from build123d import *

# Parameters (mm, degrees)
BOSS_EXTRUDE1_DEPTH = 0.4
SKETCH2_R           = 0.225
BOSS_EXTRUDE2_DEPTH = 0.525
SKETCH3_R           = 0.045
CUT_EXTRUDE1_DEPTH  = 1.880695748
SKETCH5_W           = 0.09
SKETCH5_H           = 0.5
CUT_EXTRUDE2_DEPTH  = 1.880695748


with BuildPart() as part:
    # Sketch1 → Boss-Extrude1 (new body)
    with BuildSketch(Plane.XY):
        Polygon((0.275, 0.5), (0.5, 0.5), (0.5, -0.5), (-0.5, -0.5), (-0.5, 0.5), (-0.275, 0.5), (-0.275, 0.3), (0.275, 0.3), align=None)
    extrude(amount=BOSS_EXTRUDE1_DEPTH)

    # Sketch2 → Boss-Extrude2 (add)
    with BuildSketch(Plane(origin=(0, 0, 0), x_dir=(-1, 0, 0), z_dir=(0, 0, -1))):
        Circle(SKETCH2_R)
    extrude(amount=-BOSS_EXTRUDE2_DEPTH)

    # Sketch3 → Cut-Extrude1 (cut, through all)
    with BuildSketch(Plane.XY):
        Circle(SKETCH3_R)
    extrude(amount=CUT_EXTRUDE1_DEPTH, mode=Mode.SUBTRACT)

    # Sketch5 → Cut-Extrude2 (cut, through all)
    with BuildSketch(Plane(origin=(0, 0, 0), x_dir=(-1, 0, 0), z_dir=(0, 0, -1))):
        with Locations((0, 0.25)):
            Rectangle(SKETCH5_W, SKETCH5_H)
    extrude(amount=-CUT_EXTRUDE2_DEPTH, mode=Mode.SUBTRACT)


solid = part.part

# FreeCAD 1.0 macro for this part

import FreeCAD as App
import Part
import Sketcher
from FreeCAD import Vector


def add_polygon(sketch, points):
    """Adds a closed chain of lines whose ends are joined by coincident constraints."""
    first, n = sketch.GeometryCount, len(points)
    for a, b in zip(points, points[1:] + points[:1]):
        sketch.addGeometry(Part.LineSegment(App.Vector(*a, 0), App.Vector(*b, 0)), False)
    for i in range(n):
        sketch.addConstraint(Sketcher.Constraint("Coincident", first + i, 2, first + (i + 1) % n, 1))

doc = App.newDocument("Part")
body = doc.addObject("PartDesign::Body", "Body")

sketch1 = doc.addObject("Sketcher::SketchObject", "Sketch")
body.addObject(sketch1)
sketch1.AttachmentSupport = (doc.XY_Plane, [""])
sketch1.MapMode = "FlatFace"
add_polygon(sketch1, [(0.5, 0.5), (0.28, 0.5), (0.28, 0.3), (-0.28, 0.3), (-0.28, 0.5), (-0.5, 0.5), (-0.5, -0.5), (0.5, -0.5)])
sketch1.addConstraint([
    Sketcher.Constraint("Horizontal", 0),
    Sketcher.Constraint("Vertical", 1),
    Sketcher.Constraint("Horizontal", 2),
    Sketcher.Constraint("Vertical", 3),
    Sketcher.Constraint("Horizontal", 4),
    Sketcher.Constraint("Vertical", 5),
    Sketcher.Constraint("Horizontal", 6),
    Sketcher.Constraint("Vertical", 7),
    Sketcher.Constraint("Symmetric", 4, 2, 6, 2, -1, 1),
    Sketcher.Constraint("Symmetric", 0, 2, 3, 2, -2),
    Sketcher.Constraint("Equal", 6, 5),
    Sketcher.Constraint("DistanceX", 6, 1, 6, 2, 1.0),
    Sketcher.Constraint("DistanceY", 1, 2, 1, 1, 0.2),
    Sketcher.Constraint("DistanceX", 2, 2, 2, 1, 0.55),
])
pad1 = doc.addObject("PartDesign::Pad", "Pad")
body.addObject(pad1)
pad1.Profile = sketch1
pad1.Length = 0.4

sketch2 = doc.addObject("Sketcher::SketchObject", "Sketch001")
body.addObject(sketch2)
sketch2.AttachmentSupport = (doc.XY_Plane, [""])
sketch2.MapMode = "FlatFace"
sketch2.addGeometry(Part.Circle(Vector(0, 0, 0), Vector(0, 0, 1), 0.23), False)
sketch2.addConstraint([
    Sketcher.Constraint("Coincident", 0, 3, -1, 1),
    Sketcher.Constraint("Diameter", 0, 0.45),
])
pad2 = doc.addObject("PartDesign::Pad", "Pad001")
body.addObject(pad2)
pad2.Profile = sketch2
pad2.Length = 0.525

sketch3 = doc.addObject("Sketcher::SketchObject", "Sketch002")
body.addObject(sketch3)
sketch3.AttachmentSupport = (doc.XY_Plane, [""])
sketch3.MapMode = "FlatFace"
sketch3.addGeometry(Part.Circle(Vector(0, 0, 0), Vector(0, 0, 1), 0.045), False)
sketch3.addConstraint([
    Sketcher.Constraint("Coincident", 0, 3, -1, 1),
    Sketcher.Constraint("Diameter", 0, 0.09),
])
pocket1 = doc.addObject("PartDesign::Pocket", "Pocket")
body.addObject(pocket1)
pocket1.Profile = sketch3
pocket1.Type = "ThroughAll"
pocket1.Reversed = True

sketch4 = doc.addObject("Sketcher::SketchObject", "Sketch003")
body.addObject(sketch4)
sketch4.AttachmentSupport = (doc.XY_Plane, [""])
sketch4.MapMode = "FlatFace"
add_polygon(sketch4, [(0.04, 0.5), (0.04, 0), (-0.04, 0), (-0.04, 0.5)])
sketch4.addConstraint([
    Sketcher.Constraint("Vertical", 0),
    Sketcher.Constraint("Horizontal", 1),
    Sketcher.Constraint("Vertical", 2),
    Sketcher.Constraint("Horizontal", 3),
    Sketcher.Constraint("Symmetric", 0, 2, 1, 2, -1, 1),
    Sketcher.Constraint("DistanceY", 0, 2, 0, 1, 0.5),
    Sketcher.Constraint("DistanceX", 1, 2, 1, 1, 0.09),
])
pocket2 = doc.addObject("PartDesign::Pocket", "Pocket001")
body.addObject(pocket2)
pocket2.Profile = sketch4
pocket2.Type = "ThroughAll"
pocket2.Reversed = True

doc.recompute()
